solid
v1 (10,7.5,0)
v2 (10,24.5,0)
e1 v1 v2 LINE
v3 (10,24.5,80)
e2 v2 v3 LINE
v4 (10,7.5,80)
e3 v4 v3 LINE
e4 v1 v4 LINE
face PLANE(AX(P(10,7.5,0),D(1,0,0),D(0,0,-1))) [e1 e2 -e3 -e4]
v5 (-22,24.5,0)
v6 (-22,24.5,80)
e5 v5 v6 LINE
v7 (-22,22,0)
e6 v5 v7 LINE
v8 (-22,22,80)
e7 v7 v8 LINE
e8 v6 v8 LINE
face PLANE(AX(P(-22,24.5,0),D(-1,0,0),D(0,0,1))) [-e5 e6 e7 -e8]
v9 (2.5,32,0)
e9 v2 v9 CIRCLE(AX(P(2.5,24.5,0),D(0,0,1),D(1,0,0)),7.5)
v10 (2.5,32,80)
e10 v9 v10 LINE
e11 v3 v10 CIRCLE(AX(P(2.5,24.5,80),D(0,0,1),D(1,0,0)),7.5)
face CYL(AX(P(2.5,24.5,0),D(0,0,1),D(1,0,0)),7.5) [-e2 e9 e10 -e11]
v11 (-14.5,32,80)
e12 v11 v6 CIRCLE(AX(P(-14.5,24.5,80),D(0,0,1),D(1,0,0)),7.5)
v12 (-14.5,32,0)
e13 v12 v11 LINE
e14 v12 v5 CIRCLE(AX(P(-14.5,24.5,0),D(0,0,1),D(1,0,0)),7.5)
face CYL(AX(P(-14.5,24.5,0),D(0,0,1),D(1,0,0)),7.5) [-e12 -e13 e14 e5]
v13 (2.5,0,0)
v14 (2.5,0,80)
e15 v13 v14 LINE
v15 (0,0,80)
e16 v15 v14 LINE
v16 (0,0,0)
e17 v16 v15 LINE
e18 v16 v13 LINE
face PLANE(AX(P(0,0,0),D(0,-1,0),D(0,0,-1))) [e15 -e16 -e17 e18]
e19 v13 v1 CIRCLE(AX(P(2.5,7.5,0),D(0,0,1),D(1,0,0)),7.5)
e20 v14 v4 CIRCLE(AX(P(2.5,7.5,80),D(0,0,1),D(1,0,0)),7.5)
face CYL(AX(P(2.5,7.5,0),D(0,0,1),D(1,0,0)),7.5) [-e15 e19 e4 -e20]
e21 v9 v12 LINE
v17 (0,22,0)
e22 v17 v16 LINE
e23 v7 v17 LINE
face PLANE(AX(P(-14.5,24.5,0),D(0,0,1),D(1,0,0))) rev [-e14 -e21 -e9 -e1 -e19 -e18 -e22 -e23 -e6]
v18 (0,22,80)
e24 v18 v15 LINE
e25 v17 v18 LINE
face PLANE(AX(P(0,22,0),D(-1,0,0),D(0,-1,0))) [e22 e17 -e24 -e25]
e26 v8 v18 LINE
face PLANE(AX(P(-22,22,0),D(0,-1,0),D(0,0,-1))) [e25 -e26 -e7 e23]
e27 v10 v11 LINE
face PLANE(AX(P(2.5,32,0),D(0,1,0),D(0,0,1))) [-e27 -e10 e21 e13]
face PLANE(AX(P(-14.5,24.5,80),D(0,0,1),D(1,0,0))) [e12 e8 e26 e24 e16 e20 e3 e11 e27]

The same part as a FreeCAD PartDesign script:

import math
import FreeCAD as App
import Part
import Sketcher
from FreeCAD import Vector

doc = App.newDocument("Part")
body = doc.addObject("PartDesign::Body", "Body")

# Sketch on XY plane
sketch1 = doc.addObject("Sketcher::SketchObject", "Sketch")
body.addObject(sketch1)
sketch1.AttachmentSupport = (doc.XY_Plane, [""])
sketch1.MapMode = "FlatFace"
sketch1.AttachmentOffset = App.Placement(Vector(0, 0, 80), App.Rotation())
sketch1.addGeometry([
    Part.LineSegment(Vector(-22, 24.5, 0), Vector(-22, 22, 0)),  # 0
    Part.LineSegment(Vector(-22, 22, 0), Vector(0, 22, 0)),  # 1
    Part.LineSegment(Vector(0, 22, 0), Vector(0, 0, 0)),  # 2
    Part.LineSegment(Vector(0, 0, 0), Vector(2.5, 0, 0)),  # 3
    Part.ArcOfCircle(Part.Circle(Vector(2.5, 7.5, 0), Vector(0, 0, 1), 7.5), math.radians(-90), math.radians(0)),  # 4
    Part.LineSegment(Vector(10, 7.5, 0), Vector(10, 24.5, 0)),  # 5
    Part.ArcOfCircle(Part.Circle(Vector(2.5, 24.5, 0), Vector(0, 0, 1), 7.5), math.radians(0), math.radians(90)),  # 6
    Part.LineSegment(Vector(2.5, 32, 0), Vector(-14.5, 32, 0)),  # 7
    Part.ArcOfCircle(Part.Circle(Vector(-14.5, 24.5, 0), Vector(0, 0, 1), 7.5), math.radians(90), math.radians(180)),  # 8
], False)
sketch1.addConstraint([
    Sketcher.Constraint("Coincident", 0, 2, 1, 1),
    Sketcher.Constraint("Coincident", 1, 2, 2, 1),
    Sketcher.Constraint("Coincident", 2, 2, 3, 1),
    Sketcher.Constraint("Tangent", 3, 2, 4, 1),
    Sketcher.Constraint("Tangent", 4, 2, 5, 1),
    Sketcher.Constraint("Tangent", 5, 2, 6, 1),
    Sketcher.Constraint("Tangent", 6, 2, 7, 1),
    Sketcher.Constraint("Tangent", 7, 2, 8, 1),
    Sketcher.Constraint("Tangent", 8, 2, 0, 1),
    Sketcher.Constraint("Vertical", 0),
    Sketcher.Constraint("Horizontal", 1),
    Sketcher.Constraint("Vertical", 2),
    Sketcher.Constraint("Horizontal", 3),
    Sketcher.Constraint("Vertical", 5),
    Sketcher.Constraint("Horizontal", 7),
    Sketcher.Constraint("Coincident", 2, 2, -1, 1),
    Sketcher.Constraint("Equal", 4, 6),
    Sketcher.Constraint("Equal", 6, 8),
    Sketcher.Constraint("Equal", 3, 0),
    Sketcher.Constraint("Equal", 1, 2),
    Sketcher.Constraint("Radius", 4, 7.5),
    Sketcher.Constraint("DistanceX", 1, 1, 1, 2, 22.0),
    Sketcher.Constraint("DistanceX", 7, 2, 7, 1, 17.0),
])
pad1 = doc.addObject("PartDesign::Pad", "Pad")
body.addObject(pad1)
pad1.Profile = sketch1
pad1.Length = 80
pad1.Reversed = True

doc.recompute()
